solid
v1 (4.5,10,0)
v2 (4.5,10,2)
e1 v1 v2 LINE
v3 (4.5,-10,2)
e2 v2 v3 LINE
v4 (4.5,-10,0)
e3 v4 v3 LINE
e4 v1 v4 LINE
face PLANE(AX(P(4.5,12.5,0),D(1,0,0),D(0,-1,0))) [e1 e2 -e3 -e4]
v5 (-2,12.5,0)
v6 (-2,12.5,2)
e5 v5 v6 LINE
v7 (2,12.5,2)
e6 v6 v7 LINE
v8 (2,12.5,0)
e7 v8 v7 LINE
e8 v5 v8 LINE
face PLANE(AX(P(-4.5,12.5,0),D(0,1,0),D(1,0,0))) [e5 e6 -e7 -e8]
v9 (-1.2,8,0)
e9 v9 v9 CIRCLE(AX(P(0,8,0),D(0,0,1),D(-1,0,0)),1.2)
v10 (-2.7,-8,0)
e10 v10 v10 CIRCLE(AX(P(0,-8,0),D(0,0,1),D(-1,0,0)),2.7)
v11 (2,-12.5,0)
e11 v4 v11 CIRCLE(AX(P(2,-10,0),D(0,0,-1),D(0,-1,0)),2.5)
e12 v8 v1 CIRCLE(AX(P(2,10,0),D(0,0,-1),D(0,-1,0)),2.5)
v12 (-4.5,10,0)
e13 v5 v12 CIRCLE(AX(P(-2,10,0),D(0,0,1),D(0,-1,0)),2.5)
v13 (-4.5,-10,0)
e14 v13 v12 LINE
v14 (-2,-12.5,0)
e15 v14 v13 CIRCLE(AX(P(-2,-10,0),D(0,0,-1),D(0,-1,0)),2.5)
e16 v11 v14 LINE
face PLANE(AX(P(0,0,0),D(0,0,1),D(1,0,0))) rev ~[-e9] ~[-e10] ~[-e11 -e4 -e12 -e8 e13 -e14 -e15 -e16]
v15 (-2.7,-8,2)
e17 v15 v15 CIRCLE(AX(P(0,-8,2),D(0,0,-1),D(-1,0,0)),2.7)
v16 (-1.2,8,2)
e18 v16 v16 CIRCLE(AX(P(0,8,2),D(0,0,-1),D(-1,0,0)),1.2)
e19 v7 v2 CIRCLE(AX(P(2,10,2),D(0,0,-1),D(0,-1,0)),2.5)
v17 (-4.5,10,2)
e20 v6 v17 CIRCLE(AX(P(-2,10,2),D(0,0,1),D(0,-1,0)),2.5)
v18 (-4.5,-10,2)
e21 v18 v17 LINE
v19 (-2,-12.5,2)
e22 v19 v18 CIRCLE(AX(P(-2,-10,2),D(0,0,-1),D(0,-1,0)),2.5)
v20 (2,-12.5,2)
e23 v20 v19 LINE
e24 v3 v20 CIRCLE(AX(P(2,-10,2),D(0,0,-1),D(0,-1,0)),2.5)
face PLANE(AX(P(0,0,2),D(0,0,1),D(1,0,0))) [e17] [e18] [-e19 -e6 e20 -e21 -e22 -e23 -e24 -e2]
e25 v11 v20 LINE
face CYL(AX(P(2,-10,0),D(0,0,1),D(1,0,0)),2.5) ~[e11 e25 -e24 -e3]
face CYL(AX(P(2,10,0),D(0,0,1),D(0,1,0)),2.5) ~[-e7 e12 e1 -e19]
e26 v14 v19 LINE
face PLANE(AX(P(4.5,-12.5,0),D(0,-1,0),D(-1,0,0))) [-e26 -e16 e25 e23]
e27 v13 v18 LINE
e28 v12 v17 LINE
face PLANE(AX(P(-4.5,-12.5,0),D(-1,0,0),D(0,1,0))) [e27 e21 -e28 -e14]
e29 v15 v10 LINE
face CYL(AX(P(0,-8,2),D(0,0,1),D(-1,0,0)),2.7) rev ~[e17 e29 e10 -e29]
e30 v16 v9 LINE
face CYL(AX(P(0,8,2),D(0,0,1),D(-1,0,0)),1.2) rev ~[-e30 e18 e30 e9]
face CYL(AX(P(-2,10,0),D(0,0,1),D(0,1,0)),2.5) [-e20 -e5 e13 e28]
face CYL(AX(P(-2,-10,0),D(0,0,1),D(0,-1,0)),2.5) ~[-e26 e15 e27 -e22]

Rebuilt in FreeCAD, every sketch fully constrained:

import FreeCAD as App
import Part
import Sketcher
Q = App.Units.Quantity


def edges_at(feature, points):
    """Names of the edges that pass closest to the given points."""
    edges = feature.Shape.Edges
    near = lambda p: min(range(len(edges)), key=lambda i: edges[i].distToShape(Part.Vertex(*p))[0])
    return sorted({f"Edge{near(p) + 1}" for p in points})


def add_polygon(sketch, points):
    """Adds a closed chain of lines whose ends are joined by coincident constraints."""
    first, n = sketch.GeometryCount, len(points)
    for a, b in zip(points, points[1:] + points[:1]):
        sketch.addGeometry(Part.LineSegment(App.Vector(*a, 0), App.Vector(*b, 0)), False)
    for i in range(n):
        sketch.addConstraint(Sketcher.Constraint("Coincident", first + i, 2, first + (i + 1) % n, 1))

doc = App.newDocument("Part")
body = doc.addObject("PartDesign::Body", "Body")

# Sketch on XY plane
sketch1 = body.newObject("Sketcher::SketchObject", "Sketch")
sketch1.AttachmentSupport = (doc.getObject("XY_Plane"), [""])
sketch1.MapMode = "FlatFace"
add_polygon(sketch1, [(4, 12), (-4, 12), (-4, -12), (4, -12)])  # lines 0-3
sketch1.addConstraint([
    Sketcher.Constraint("Horizontal", 0),
    Sketcher.Constraint("Vertical", 1),
    Sketcher.Constraint("Horizontal", 2),
    Sketcher.Constraint("Vertical", 3),
    Sketcher.Constraint("Symmetric", 0, 2, 2, 2, -1, 1),
    Sketcher.Constraint("DistanceX", 0, 2, 0, 1, Q("9 mm")),
    Sketcher.Constraint("DistanceY", 1, 2, 1, 1, Q("25 mm")),
])
pad1 = body.newObject("PartDesign::Pad", "Pad")
pad1.Profile = sketch1
pad1.Length = 2
doc.recompute()

fillet = body.newObject("PartDesign::Fillet", "Fillet")
fillet.Base = (pad1, edges_at(pad1, [
    (4.5, 12.5, 1),
    (-4.5, 12.5, 1),
    (-4.5, -12.5, 1),
    (4.5, -12.5, 1),
]))
fillet.Radius = 2.5

# Sketch on XY plane
sketch2 = body.newObject("Sketcher::SketchObject", "Sketch001")
sketch2.AttachmentSupport = (doc.getObject("XY_Plane"), [""])
sketch2.MapMode = "FlatFace"
sketch2.AttachmentOffset = App.Placement(App.Vector(0, 0, 2), App.Rotation())
sketch2.addGeometry([
    Part.Circle(App.Vector(0, 8, 0), App.Vector(0, 0, 1), 1.2),
    Part.Circle(App.Vector(0, -8, 0), App.Vector(0, 0, 1), 2.7),
], False)
sketch2.addConstraint([
    Sketcher.Constraint("Symmetric", 0, 3, 1, 3, -1, 1),
    Sketcher.Constraint("PointOnObject", 0, 3, -2),
    Sketcher.Constraint("Diameter", 0, Q("2.4 mm")),
    Sketcher.Constraint("Diameter", 1, Q("5.4 mm")),
    Sketcher.Constraint("DistanceY", -1, 1, 0, 3, Q("8 mm")),
])
pocket1 = body.newObject("PartDesign::Pocket", "Pocket")
pocket1.Profile = sketch2
pocket1.Length = 3

doc.recompute()
